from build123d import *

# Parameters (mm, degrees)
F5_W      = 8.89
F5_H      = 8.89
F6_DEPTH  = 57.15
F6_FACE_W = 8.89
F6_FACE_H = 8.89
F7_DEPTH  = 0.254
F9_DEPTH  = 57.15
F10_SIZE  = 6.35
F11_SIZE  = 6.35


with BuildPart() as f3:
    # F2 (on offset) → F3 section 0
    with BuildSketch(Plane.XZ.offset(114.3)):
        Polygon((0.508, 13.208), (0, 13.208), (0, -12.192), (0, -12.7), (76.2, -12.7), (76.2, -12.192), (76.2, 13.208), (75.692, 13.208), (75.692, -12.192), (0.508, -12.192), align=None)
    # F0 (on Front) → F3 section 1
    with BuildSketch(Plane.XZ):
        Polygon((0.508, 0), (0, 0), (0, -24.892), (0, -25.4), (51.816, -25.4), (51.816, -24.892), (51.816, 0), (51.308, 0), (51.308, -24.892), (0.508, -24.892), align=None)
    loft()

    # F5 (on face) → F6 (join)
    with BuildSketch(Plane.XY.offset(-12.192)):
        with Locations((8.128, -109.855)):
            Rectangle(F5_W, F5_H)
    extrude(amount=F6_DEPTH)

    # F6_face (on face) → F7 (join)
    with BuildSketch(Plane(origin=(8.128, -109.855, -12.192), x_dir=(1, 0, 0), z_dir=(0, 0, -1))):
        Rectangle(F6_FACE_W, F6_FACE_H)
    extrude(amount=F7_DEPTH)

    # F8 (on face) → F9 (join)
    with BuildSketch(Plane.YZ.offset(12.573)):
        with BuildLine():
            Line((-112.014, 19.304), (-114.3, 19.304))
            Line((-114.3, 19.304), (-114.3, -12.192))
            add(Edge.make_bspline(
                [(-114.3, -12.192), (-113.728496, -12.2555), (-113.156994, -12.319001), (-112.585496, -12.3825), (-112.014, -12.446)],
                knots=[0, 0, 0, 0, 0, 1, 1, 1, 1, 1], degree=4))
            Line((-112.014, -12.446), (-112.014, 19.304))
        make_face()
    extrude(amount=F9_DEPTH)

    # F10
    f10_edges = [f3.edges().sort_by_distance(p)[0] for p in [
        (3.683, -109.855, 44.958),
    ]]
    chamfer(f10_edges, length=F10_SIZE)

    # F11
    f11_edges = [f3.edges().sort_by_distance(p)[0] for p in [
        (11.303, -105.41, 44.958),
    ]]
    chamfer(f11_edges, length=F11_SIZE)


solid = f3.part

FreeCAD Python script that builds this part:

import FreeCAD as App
import Part
import Sketcher
from FreeCAD import Vector
Q = App.Units.Quantity


def edges_at(feature, points):
    """Names of the edges that pass closest to the given points."""
    edges = feature.Shape.Edges
    near = lambda p: min(range(len(edges)), key=lambda i: edges[i].distToShape(Part.Vertex(*p))[0])
    return sorted({f"Edge{near(p) + 1}" for p in points})

doc = App.newDocument("Part")
body = doc.addObject("PartDesign::Body", "Body")
body.AllowCompound = True

sketch1 = body.newObject("Sketcher::SketchObject", "Sketch")
sketch1.AttachmentSupport = (doc.getObject("XZ_Plane"), [""])
sketch1.MapMode = "FlatFace"
sketch1.AttachmentOffset = App.Placement(Vector(0, 0, 4.5 * 25.4), App.Rotation())
sketch1.addGeometry([
    Part.LineSegment(Vector(0.508, 13.208, 0), Vector(0, 13.208, 0)),
    Part.LineSegment(Vector(0, 13.208, 0), Vector(0, -12.7, 0)),
    Part.LineSegment(Vector(0, -12.7, 0), Vector(76.2, -12.7, 0)),
    Part.LineSegment(Vector(76.2, -12.7, 0), Vector(76.2, 13.208, 0)),
    Part.LineSegment(Vector(76.2, 13.208, 0), Vector(75.692, 13.208, 0)),
    Part.LineSegment(Vector(75.692, 13.208, 0), Vector(75.692, -12.192, 0)),
    Part.LineSegment(Vector(75.692, -12.192, 0), Vector(0.508, -12.192, 0)),
    Part.LineSegment(Vector(0.508, -12.192, 0), Vector(0.508, 13.208, 0)),
], False)
sketch1.addConstraint([
    Sketcher.Constraint("Coincident", 0, 2, 1, 1),
    Sketcher.Constraint("Coincident", 1, 2, 2, 1),
    Sketcher.Constraint("Coincident", 2, 2, 3, 1),
    Sketcher.Constraint("Coincident", 3, 2, 4, 1),
    Sketcher.Constraint("Coincident", 4, 2, 5, 1),
    Sketcher.Constraint("Coincident", 5, 2, 6, 1),
    Sketcher.Constraint("Coincident", 6, 2, 7, 1),
    Sketcher.Constraint("Coincident", 7, 2, 0, 1),
    Sketcher.Constraint("Horizontal", 0),
    Sketcher.Constraint("Vertical", 1),
    Sketcher.Constraint("Horizontal", 2),
    Sketcher.Constraint("Vertical", 3),
    Sketcher.Constraint("Horizontal", 4),
    Sketcher.Constraint("Vertical", 5),
    Sketcher.Constraint("Horizontal", 6),
    Sketcher.Constraint("Vertical", 7),
    Sketcher.Constraint("PointOnObject", 0, 2, -2),
    Sketcher.Constraint("Horizontal", 0, 2, 3, 2),
    Sketcher.Constraint("Equal", 0, 4),
    Sketcher.Constraint("DistanceX", 2, 1, 2, 2, Q("3 in")),
    Sketcher.Constraint("DistanceY", 5, 2, 5, 1, Q("1 in")),
    Sketcher.Constraint("DistanceX", 0, 2, 0, 1, Q("0.02 in")),
    Sketcher.Constraint("DistanceY", 1, 2, 1, 1, Q("1.02 in")),
    Sketcher.Constraint("DistanceY", 1, 2, -1, 1, Q("0.5 in")),
])

sketch2 = body.newObject("Sketcher::SketchObject", "Sketch001")
sketch2.AttachmentSupport = (doc.getObject("XZ_Plane"), [""])
sketch2.MapMode = "FlatFace"
sketch2.addGeometry([
    Part.LineSegment(Vector(0.508, 0, 0), Vector(0, 0, 0)),
    Part.LineSegment(Vector(0, 0, 0), Vector(0, -25.4, 0)),
    Part.LineSegment(Vector(0, -25.4, 0), Vector(51.816, -25.4, 0)),
    Part.LineSegment(Vector(51.816, -25.4, 0), Vector(51.816, 0, 0)),
    Part.LineSegment(Vector(51.816, 0, 0), Vector(51.308, 0, 0)),
    Part.LineSegment(Vector(51.308, 0, 0), Vector(51.308, -24.892, 0)),
    Part.LineSegment(Vector(51.308, -24.892, 0), Vector(0.508, -24.892, 0)),
    Part.LineSegment(Vector(0.508, -24.892, 0), Vector(0.508, 0, 0)),
], False)
sketch2.addConstraint([
    Sketcher.Constraint("Coincident", 0, 2, 1, 1),
    Sketcher.Constraint("Coincident", 1, 2, 2, 1),
    Sketcher.Constraint("Coincident", 2, 2, 3, 1),
    Sketcher.Constraint("Coincident", 3, 2, 4, 1),
    Sketcher.Constraint("Coincident", 4, 2, 5, 1),
    Sketcher.Constraint("Coincident", 5, 2, 6, 1),
    Sketcher.Constraint("Coincident", 6, 2, 7, 1),
    Sketcher.Constraint("Coincident", 7, 2, 0, 1),
    Sketcher.Constraint("Horizontal", 0),
    Sketcher.Constraint("Vertical", 1),
    Sketcher.Constraint("Horizontal", 2),
    Sketcher.Constraint("Vertical", 3),
    Sketcher.Constraint("Horizontal", 4),
    Sketcher.Constraint("Vertical", 5),
    Sketcher.Constraint("Horizontal", 6),
    Sketcher.Constraint("Vertical", 7),
    Sketcher.Constraint("Coincident", 0, 2, -1, 1),
    Sketcher.Constraint("PointOnObject", 3, 2, -1),
    Sketcher.Constraint("Equal", 0, 4),
    Sketcher.Constraint("DistanceX", 6, 2, 6, 1, Q("2 in")),
    Sketcher.Constraint("DistanceY", 1, 2, 1, 1, Q("1 in")),
    Sketcher.Constraint("DistanceX", 0, 2, 0, 1, Q("0.02 in")),
    Sketcher.Constraint("DistanceY", 5, 2, 5, 1, Q("0.98 in")),
])

additiveloft = body.newObject("PartDesign::AdditiveLoft", "AdditiveLoft")
additiveloft.Profile = sketch1
additiveloft.Sections = [sketch2]

sketch3 = body.newObject("Sketcher::SketchObject", "Sketch002")
sketch3.AttachmentSupport = (doc.getObject("XY_Plane"), [""])
sketch3.MapMode = "FlatFace"
sketch3.AttachmentOffset = App.Placement(Vector(0, 0, -0.48 * 25.4), App.Rotation())
sketch3.addGeometry([
    Part.LineSegment(Vector(3.683, -105.41, 0), Vector(3.683, -114.3, 0)),
    Part.LineSegment(Vector(3.683, -114.3, 0), Vector(12.573, -114.3, 0)),
    Part.LineSegment(Vector(12.573, -114.3, 0), Vector(12.573, -105.41, 0)),
    Part.LineSegment(Vector(12.573, -105.41, 0), Vector(3.683, -105.41, 0)),
], False)
sketch3.addConstraint([
    Sketcher.Constraint("Coincident", 0, 2, 1, 1),
    Sketcher.Constraint("Coincident", 1, 2, 2, 1),
    Sketcher.Constraint("Coincident", 2, 2, 3, 1),
    Sketcher.Constraint("Coincident", 3, 2, 0, 1),
    Sketcher.Constraint("Vertical", 0),
    Sketcher.Constraint("Horizontal", 1),
    Sketcher.Constraint("Vertical", 2),
    Sketcher.Constraint("Horizontal", 3),
    Sketcher.Constraint("Equal", 3, 0),
    Sketcher.Constraint("DistanceX", 1, 1, 1, 2, Q("0.35 in")),
    Sketcher.Constraint("DistanceY", 0, 2, -1, 1, Q("4.5 in")),
    Sketcher.Constraint("DistanceX", -1, 1, 0, 2, Q("0.145 in")),
])
pad1 = body.newObject("PartDesign::Pad", "Pad")
pad1.Profile = sketch3
pad1.Length = Q("2.25 in")

sketch4 = body.newObject("Sketcher::SketchObject", "Sketch003")
sketch4.AttachmentSupport = (doc.getObject("XY_Plane"), [""])
sketch4.MapMode = "FlatFace"
sketch4.AttachmentOffset = App.Placement(Vector(0, 0, -0.48 * 25.4), App.Rotation())
sketch4.addGeometry([
    Part.LineSegment(Vector(3.683, -114.3, 0), Vector(3.683, -105.41, 0)),
    Part.LineSegment(Vector(3.683, -105.41, 0), Vector(12.573, -105.41, 0)),
    Part.LineSegment(Vector(12.573, -105.41, 0), Vector(12.573, -114.3, 0)),
    Part.LineSegment(Vector(12.573, -114.3, 0), Vector(3.683, -114.3, 0)),
], False)
sketch4.addConstraint([
    Sketcher.Constraint("Coincident", 0, 2, 1, 1),
    Sketcher.Constraint("Coincident", 1, 2, 2, 1),
    Sketcher.Constraint("Coincident", 2, 2, 3, 1),
    Sketcher.Constraint("Coincident", 3, 2, 0, 1),
    Sketcher.Constraint("Vertical", 0),
    Sketcher.Constraint("Horizontal", 1),
    Sketcher.Constraint("Vertical", 2),
    Sketcher.Constraint("Horizontal", 3),
    Sketcher.Constraint("Equal", 3, 0),
    Sketcher.Constraint("DistanceX", 1, 1, 1, 2, Q("0.35 in")),
    Sketcher.Constraint("DistanceY", 2, 2, -1, 1, Q("4.5 in")),
    Sketcher.Constraint("DistanceX", -1, 1, 0, 2, Q("0.145 in")),
])
pad2 = body.newObject("PartDesign::Pad", "Pad001")
pad2.Profile = sketch4
pad2.Length = Q("0.01 in")
pad2.Reversed = True

sketch5 = body.newObject("Sketcher::SketchObject", "Sketch004")
sketch5.AttachmentSupport = (doc.getObject("YZ_Plane"), [""])
sketch5.MapMode = "FlatFace"
sketch5.AttachmentOffset = App.Placement(Vector(0, 0, 0.495 * 25.4), App.Rotation())
sketch5.addGeometry([
    Part.LineSegment(Vector(-112.014, 19.304, 0), Vector(-114.3, 19.304, 0)),
    Part.LineSegment(Vector(-114.3, 19.304, 0), Vector(-114.3, -12.192, 0)),
    Part.BSplineCurve([Vector(-114.3, -12.192, 0), Vector(-113.728496, -12.2555, 0), Vector(-113.156994, -12.319001, 0), Vector(-112.585496, -12.3825, 0), Vector(-112.014, -12.446, 0)], [5, 5], [0, 1], False, 4, [1, 1, 1, 1, 1], False),
    Part.LineSegment(Vector(-112.014, -12.446, 0), Vector(-112.014, 19.304, 0)),
], False)
sketch5.addConstraint([
    Sketcher.Constraint("Block", 2),
    Sketcher.Constraint("Coincident", 0, 2, 1, 1),
    Sketcher.Constraint("Coincident", 1, 2, 2, 1),
    Sketcher.Constraint("Coincident", 2, 2, 3, 1),
    Sketcher.Constraint("Coincident", 3, 2, 0, 1),
    Sketcher.Constraint("Horizontal", 0),
    Sketcher.Constraint("Vertical", 1),
    Sketcher.Constraint("Vertical", 3),
    Sketcher.Constraint("DistanceY", 1, 2, 1, 1, Q("1.24 in")),
])
pad3 = body.newObject("PartDesign::Pad", "Pad002")
pad3.Profile = sketch5
pad3.Length = Q("2.25 in")
doc.recompute()

chamfer = body.newObject("PartDesign::Chamfer", "Chamfer")
chamfer.Base = (pad3, edges_at(pad3, [(3.683, -109.855, 44.958)]))
chamfer.Size = Q("0.25 in")
doc.recompute()

chamfer2 = body.newObject("PartDesign::Chamfer", "Chamfer001")
chamfer2.Base = (chamfer, edges_at(chamfer, [(11.303, -105.41, 44.958)]))
chamfer2.Size = Q("0.25 in")

doc.recompute()
